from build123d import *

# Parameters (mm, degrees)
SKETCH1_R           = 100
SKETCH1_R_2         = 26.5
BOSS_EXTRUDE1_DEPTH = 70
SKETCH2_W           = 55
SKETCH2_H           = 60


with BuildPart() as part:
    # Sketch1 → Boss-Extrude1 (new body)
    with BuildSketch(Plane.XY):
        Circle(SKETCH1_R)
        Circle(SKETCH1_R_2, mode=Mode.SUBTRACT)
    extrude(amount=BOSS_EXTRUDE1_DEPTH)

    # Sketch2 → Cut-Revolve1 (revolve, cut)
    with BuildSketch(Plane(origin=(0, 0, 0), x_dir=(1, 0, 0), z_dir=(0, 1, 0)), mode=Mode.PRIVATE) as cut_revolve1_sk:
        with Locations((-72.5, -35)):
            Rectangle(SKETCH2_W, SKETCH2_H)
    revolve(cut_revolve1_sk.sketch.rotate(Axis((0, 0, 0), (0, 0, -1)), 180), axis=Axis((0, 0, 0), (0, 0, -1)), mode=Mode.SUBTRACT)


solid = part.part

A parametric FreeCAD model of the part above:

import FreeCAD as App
import Part
import Sketcher

doc = App.newDocument("Part")
body = doc.addObject("PartDesign::Body", "Body")

# Sketch on XY plane
sketch1 = body.newObject("Sketcher::SketchObject", "Sketch")
sketch1.AttachmentSupport = (doc.getObject("XY_Plane"), [""])
sketch1.MapMode = "FlatFace"
sketch1.addGeometry(Part.Circle(App.Vector(0, 0, 0), App.Vector(0, 0, 1), 100), False)
sketch1.addGeometry(Part.Circle(App.Vector(0, 0, 0), App.Vector(0, 0, 1), 26.5), False)
sketch1.addConstraint(Sketcher.Constraint("Coincident", 0, 3, -1, 1))
sketch1.addConstraint(Sketcher.Constraint("Coincident", 1, 3, -1, 1))
sketch1.addConstraint(Sketcher.Constraint("Diameter", 0, 200.0))
sketch1.addConstraint(Sketcher.Constraint("Diameter", 1, 53.0))
pad1 = body.newObject("PartDesign::Pad", "Pad")
pad1.Profile = sketch1
pad1.Length = 70

# Sketch on XZ plane
sketch2 = body.newObject("Sketcher::SketchObject", "Sketch001")
sketch2.AttachmentSupport = (doc.getObject("XZ_Plane"), [""])
sketch2.MapMode = "FlatFace"
sketch2.addGeometry(Part.LineSegment(App.Vector(-100, 5, 0), App.Vector(-100, 65, 0)), False)
sketch2.addGeometry(Part.LineSegment(App.Vector(-100, 65, 0), App.Vector(-45, 65, 0)), False)
sketch2.addGeometry(Part.LineSegment(App.Vector(-45, 65, 0), App.Vector(-45, 5, 0)), False)
sketch2.addGeometry(Part.LineSegment(App.Vector(-45, 5, 0), App.Vector(-100, 5, 0)), False)
sketch2.addConstraint(Sketcher.Constraint("Coincident", 0, 2, 1, 1))
sketch2.addConstraint(Sketcher.Constraint("Coincident", 1, 2, 2, 1))
sketch2.addConstraint(Sketcher.Constraint("Coincident", 2, 2, 3, 1))
sketch2.addConstraint(Sketcher.Constraint("Coincident", 3, 2, 0, 1))
sketch2.addConstraint(Sketcher.Constraint("Vertical", 0))
sketch2.addConstraint(Sketcher.Constraint("Horizontal", 1))
sketch2.addConstraint(Sketcher.Constraint("Vertical", 2))
sketch2.addConstraint(Sketcher.Constraint("Horizontal", 3))
sketch2.addConstraint(Sketcher.Constraint("DistanceX", 1, 1, 1, 2, 55.0))
sketch2.addConstraint(Sketcher.Constraint("DistanceY", 0, 1, 0, 2, 60.0))
sketch2.addConstraint(Sketcher.Constraint("DistanceX", 0, 2, -1, 1, 100.0))
sketch2.addConstraint(Sketcher.Constraint("DistanceY", -1, 1, 0, 2, 65.0))
groove = body.newObject("PartDesign::Groove", "Groove")
groove.Profile = sketch2
groove.ReferenceAxis = (sketch2, ["V_Axis"])
groove.Angle = 360

doc.recompute()
